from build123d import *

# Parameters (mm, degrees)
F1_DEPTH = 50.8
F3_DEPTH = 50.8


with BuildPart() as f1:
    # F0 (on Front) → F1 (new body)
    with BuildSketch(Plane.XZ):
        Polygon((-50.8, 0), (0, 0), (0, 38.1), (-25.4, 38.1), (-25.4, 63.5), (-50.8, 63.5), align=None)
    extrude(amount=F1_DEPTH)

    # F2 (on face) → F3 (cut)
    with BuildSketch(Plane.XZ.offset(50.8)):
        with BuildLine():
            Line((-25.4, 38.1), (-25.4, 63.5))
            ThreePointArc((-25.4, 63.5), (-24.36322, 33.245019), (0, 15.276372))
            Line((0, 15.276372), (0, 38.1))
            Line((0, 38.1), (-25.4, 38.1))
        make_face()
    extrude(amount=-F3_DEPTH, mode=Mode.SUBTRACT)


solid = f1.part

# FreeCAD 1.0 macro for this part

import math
import FreeCAD as App
import Part
import Sketcher
Q = App.Units.Quantity

doc = App.newDocument("Part")
body = doc.addObject("PartDesign::Body", "Body")

# Sketch on XZ plane
sketch1 = doc.addObject("Sketcher::SketchObject", "Sketch")
body.addObject(sketch1)
sketch1.AttachmentSupport = (doc.XZ_Plane, [""])
sketch1.MapMode = "FlatFace"
sketch1.addGeometry([
    Part.LineSegment(App.Vector(-51, 0, 0), App.Vector(0, 0, 0)),  # 0
    Part.LineSegment(App.Vector(0, 0, 0), App.Vector(0, 38, 0)),  # 1
    Part.LineSegment(App.Vector(0, 38, 0), App.Vector(-25, 38, 0)),  # 2
    Part.LineSegment(App.Vector(-25, 38, 0), App.Vector(-25, 64, 0)),  # 3
    Part.LineSegment(App.Vector(-25, 64, 0), App.Vector(-51, 64, 0)),  # 4
    Part.LineSegment(App.Vector(-51, 64, 0), App.Vector(-51, 0, 0)),  # 5
], False)
sketch1.addConstraint([
    Sketcher.Constraint("Coincident", 0, 2, 1, 1),
    Sketcher.Constraint("Coincident", 1, 2, 2, 1),
    Sketcher.Constraint("Coincident", 2, 2, 3, 1),
    Sketcher.Constraint("Coincident", 3, 2, 4, 1),
    Sketcher.Constraint("Coincident", 4, 2, 5, 1),
    Sketcher.Constraint("Coincident", 5, 2, 0, 1),
    Sketcher.Constraint("Horizontal", 0),
    Sketcher.Constraint("Vertical", 1),
    Sketcher.Constraint("Horizontal", 2),
    Sketcher.Constraint("Vertical", 3),
    Sketcher.Constraint("Horizontal", 4),
    Sketcher.Constraint("Vertical", 5),
    Sketcher.Constraint("Coincident", 0, 2, -1, 1),
    Sketcher.Constraint("Equal", 2, 4),
    Sketcher.Constraint("Equal", 4, 3),
    Sketcher.Constraint("DistanceX", 0, 1, 0, 2, Q("2 in")),
    Sketcher.Constraint("DistanceY", 1, 1, 1, 2, Q("1.5 in")),
])
pad1 = doc.addObject("PartDesign::Pad", "Pad")
body.addObject(pad1)
pad1.Profile = sketch1
pad1.Length = Q("2 in")

# Sketch on XZ plane
sketch2 = doc.addObject("Sketcher::SketchObject", "Sketch001")
body.addObject(sketch2)
sketch2.AttachmentSupport = (doc.XZ_Plane, [""])
sketch2.MapMode = "FlatFace"
sketch2.AttachmentOffset = App.Placement(App.Vector(0, 0, 2 * 25.4), App.Rotation())
sketch2.addGeometry([
    Part.LineSegment(App.Vector(-25, 38, 0), App.Vector(-25, 64, 0)),
    Part.ArcOfCircle(Part.Circle(App.Vector(6, 49, 0), App.Vector(0, 0, 1), 35), math.radians(156), math.radians(259)),
    Part.LineSegment(App.Vector(0, 15, 0), App.Vector(0, 38, 0)),
    Part.LineSegment(App.Vector(0, 38, 0), App.Vector(-25, 38, 0)),
], False)
sketch2.addConstraint([
    Sketcher.Constraint("Coincident", 0, 2, 1, 1),
    Sketcher.Constraint("Coincident", 1, 2, 2, 1),
    Sketcher.Constraint("Coincident", 2, 2, 3, 1),
    Sketcher.Constraint("Coincident", 3, 2, 0, 1),
    Sketcher.Constraint("Vertical", 0),
    Sketcher.Constraint("Vertical", 2),
    Sketcher.Constraint("Horizontal", 3),
    Sketcher.Constraint("PointOnObject", 1, 2, -2),
    Sketcher.Constraint("Equal", 3, 0),
    Sketcher.Constraint("DistanceX", 3, 2, 3, 1, Q("1 in")),
    Sketcher.Constraint("DistanceY", -1, 1, 0, 2, Q("2.5 in")),
    Sketcher.Constraint("Radius", 1, 34.760584),
    Sketcher.Constraint("DistanceY", 2, 1, 2, 2, 22.823628),
])
pocket1 = doc.addObject("PartDesign::Pocket", "Pocket")
body.addObject(pocket1)
pocket1.Profile = sketch2
pocket1.Length = Q("2 in")

doc.recompute()
